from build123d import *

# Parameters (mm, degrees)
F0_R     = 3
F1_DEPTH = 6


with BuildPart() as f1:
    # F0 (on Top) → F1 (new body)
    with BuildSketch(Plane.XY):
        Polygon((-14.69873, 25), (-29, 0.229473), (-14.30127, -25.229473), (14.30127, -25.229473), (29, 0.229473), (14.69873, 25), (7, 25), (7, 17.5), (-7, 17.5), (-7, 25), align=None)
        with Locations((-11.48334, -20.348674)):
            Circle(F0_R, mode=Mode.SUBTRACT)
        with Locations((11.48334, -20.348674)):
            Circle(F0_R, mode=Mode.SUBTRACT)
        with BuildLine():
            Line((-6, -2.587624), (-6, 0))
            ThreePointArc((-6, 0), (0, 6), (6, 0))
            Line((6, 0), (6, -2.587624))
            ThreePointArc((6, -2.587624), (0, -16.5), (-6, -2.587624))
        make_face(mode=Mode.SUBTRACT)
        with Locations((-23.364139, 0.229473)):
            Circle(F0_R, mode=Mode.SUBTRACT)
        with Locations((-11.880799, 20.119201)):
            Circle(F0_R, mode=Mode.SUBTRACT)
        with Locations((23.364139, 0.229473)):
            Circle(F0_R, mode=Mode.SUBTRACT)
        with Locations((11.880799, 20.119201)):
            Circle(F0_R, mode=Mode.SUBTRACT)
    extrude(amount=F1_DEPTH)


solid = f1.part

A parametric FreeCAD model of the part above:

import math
import FreeCAD as App
import Part
import Sketcher
from FreeCAD import Vector
Q = App.Units.Quantity

doc = App.newDocument("Part")
body = doc.addObject("PartDesign::Body", "Body")

# Sketch on XY plane
sketch1 = doc.addObject("Sketcher::SketchObject", "Sketch")
body.addObject(sketch1)
sketch1.AttachmentSupport = (doc.XY_Plane, [""])
sketch1.MapMode = "FlatFace"
sketch1.addGeometry([
    Part.LineSegment(Vector(-14.7, 25, 0), Vector(-29, 0.2, 0)),  # 0
    Part.LineSegment(Vector(-29, 0.2, 0), Vector(-14.3, -25.2, 0)),  # 1
    Part.LineSegment(Vector(-14.3, -25.2, 0), Vector(14.3, -25.2, 0)),  # 2
    Part.LineSegment(Vector(14.3, -25.2, 0), Vector(29, 0.2, 0)),  # 3
    Part.LineSegment(Vector(29, 0.2, 0), Vector(14.7, 25, 0)),  # 4
    Part.LineSegment(Vector(14.7, 25, 0), Vector(7, 25, 0)),  # 5
    Part.LineSegment(Vector(7, 25, 0), Vector(7, 17.5, 0)),  # 6
    Part.LineSegment(Vector(7, 17.5, 0), Vector(-7, 17.5, 0)),  # 7
    Part.LineSegment(Vector(-7, 17.5, 0), Vector(-7, 25, 0)),  # 8
    Part.LineSegment(Vector(-7, 25, 0), Vector(-14.7, 25, 0)),  # 9
    Part.Circle(Vector(-11.5, -20.3, 0), Vector(0, 0, 1), 3),  # 10
    Part.Circle(Vector(11.5, -20.3, 0), Vector(0, 0, 1), 3),  # 11
    Part.ArcOfCircle(Part.Circle(Vector(0, -8.2, 0), Vector(0, 0, 1), 8.3), math.radians(137), math.radians(403)),  # 12
    Part.LineSegment(Vector(-6, -2.6, 0), Vector(-6, 0, 0)),  # 13
    Part.ArcOfCircle(Part.Circle(Vector(0, 0, 0), Vector(0, 0, 1), 6), math.radians(0), math.radians(180)),  # 14
    Part.LineSegment(Vector(6, 0, 0), Vector(6, -2.6, 0)),  # 15
    Part.Circle(Vector(-23.4, 0.2, 0), Vector(0, 0, 1), 3),  # 16
    Part.Circle(Vector(-11.9, 20.1, 0), Vector(0, 0, 1), 3),  # 17
    Part.Circle(Vector(23.4, 0.2, 0), Vector(0, 0, 1), 3),  # 18
    Part.Circle(Vector(11.9, 20.1, 0), Vector(0, 0, 1), 3),  # 19
], False)
sketch1.addConstraint([
    Sketcher.Constraint("Coincident", 0, 2, 1, 1),
    Sketcher.Constraint("Coincident", 1, 2, 2, 1),
    Sketcher.Constraint("Coincident", 2, 2, 3, 1),
    Sketcher.Constraint("Coincident", 3, 2, 4, 1),
    Sketcher.Constraint("Coincident", 4, 2, 5, 1),
    Sketcher.Constraint("Coincident", 5, 2, 6, 1),
    Sketcher.Constraint("Coincident", 6, 2, 7, 1),
    Sketcher.Constraint("Coincident", 7, 2, 8, 1),
    Sketcher.Constraint("Coincident", 8, 2, 9, 1),
    Sketcher.Constraint("Coincident", 9, 2, 0, 1),
    Sketcher.Constraint("Coincident", 12, 1, 13, 1),
    Sketcher.Constraint("Tangent", 13, 2, 14, 2),
    Sketcher.Constraint("Tangent", 14, 1, 15, 1),
    Sketcher.Constraint("Coincident", 15, 2, 12, 2),
    Sketcher.Constraint("Horizontal", 2),
    Sketcher.Constraint("Horizontal", 5),
    Sketcher.Constraint("Vertical", 6),
    Sketcher.Constraint("Horizontal", 7),
    Sketcher.Constraint("Vertical", 8),
    Sketcher.Constraint("Horizontal", 9),
    Sketcher.Constraint("Vertical", 13),
    Sketcher.Constraint("Vertical", 15),
    Sketcher.Constraint("Coincident", 14, 3, -1, 1),
    Sketcher.Constraint("Equal", 10, 11),
    Sketcher.Constraint("Equal", 11, 16),
    Sketcher.Constraint("Equal", 16, 17),
    Sketcher.Constraint("Equal", 17, 18),
    Sketcher.Constraint("Equal", 18, 19),
    Sketcher.Constraint("Symmetric", 10, 3, 11, 3, -2),
    Sketcher.Constraint("Symmetric", 16, 3, 18, 3, -2),
    Sketcher.Constraint("Symmetric", 17, 3, 19, 3, -2),
    Sketcher.Constraint("Symmetric", 0, 2, 3, 2, -2),
    Sketcher.Constraint("Symmetric", 5, 2, 8, 2, -2),
    Sketcher.Constraint("PointOnObject", 12, 3, -2),
    Sketcher.Constraint("Parallel", 0, 3),
    Sketcher.Constraint("Parallel", 1, 4),
    Sketcher.Constraint("Horizontal", 18, 3, 0, 2),
    Sketcher.Constraint("Equal", 5, 9),
    Sketcher.Constraint("Diameter", 10, Q("6 mm")),
    Sketcher.Constraint("Radius", 14, Q("6 mm")),
    Sketcher.Constraint("DistanceX", 7, 2, 7, 1, Q("14 mm")),
    Sketcher.Constraint("Angle", 0, Q("-119.999999 deg")),
    Sketcher.Constraint("Radius", 12, Q("8.25 mm")),
    Sketcher.Constraint("DistanceY", 6, 2, 6, 1, Q("7.5 mm")),
    Sketcher.Constraint("DistanceX", 0, 2, -1, 1, Q("29 mm")),
    Sketcher.Constraint("DistanceY", -1, 1, 4, 2, Q("25 mm")),
    Sketcher.Constraint("DistanceY", 12, 3, -1, 1, Q("8.25 mm")),
    Sketcher.Constraint("DistanceX", 2, 1, 2, 2, Q("28.60254 mm")),
    Sketcher.Constraint("DistanceX", 5, 2, 5, 1, Q("7.69873 mm")),
    Sketcher.Constraint("DistanceX", 17, 3, -1, 1, Q("11.880799 mm")),
    Sketcher.Constraint("DistanceY", -1, 1, 17, 3, Q("20.119201 mm")),
    Sketcher.Constraint("DistanceX", 16, 3, 10, 3, Q("11.880799 mm")),
    Sketcher.Constraint("DistanceY", 1, 2, 10, 3, Q("4.880799 mm")),
    Sketcher.Constraint("DistanceX", 10, 3, -1, 1, Q("11.48334 mm")),
])
pad1 = doc.addObject("PartDesign::Pad", "Pad")
body.addObject(pad1)
pad1.Profile = sketch1
pad1.Length = 6

doc.recompute()
